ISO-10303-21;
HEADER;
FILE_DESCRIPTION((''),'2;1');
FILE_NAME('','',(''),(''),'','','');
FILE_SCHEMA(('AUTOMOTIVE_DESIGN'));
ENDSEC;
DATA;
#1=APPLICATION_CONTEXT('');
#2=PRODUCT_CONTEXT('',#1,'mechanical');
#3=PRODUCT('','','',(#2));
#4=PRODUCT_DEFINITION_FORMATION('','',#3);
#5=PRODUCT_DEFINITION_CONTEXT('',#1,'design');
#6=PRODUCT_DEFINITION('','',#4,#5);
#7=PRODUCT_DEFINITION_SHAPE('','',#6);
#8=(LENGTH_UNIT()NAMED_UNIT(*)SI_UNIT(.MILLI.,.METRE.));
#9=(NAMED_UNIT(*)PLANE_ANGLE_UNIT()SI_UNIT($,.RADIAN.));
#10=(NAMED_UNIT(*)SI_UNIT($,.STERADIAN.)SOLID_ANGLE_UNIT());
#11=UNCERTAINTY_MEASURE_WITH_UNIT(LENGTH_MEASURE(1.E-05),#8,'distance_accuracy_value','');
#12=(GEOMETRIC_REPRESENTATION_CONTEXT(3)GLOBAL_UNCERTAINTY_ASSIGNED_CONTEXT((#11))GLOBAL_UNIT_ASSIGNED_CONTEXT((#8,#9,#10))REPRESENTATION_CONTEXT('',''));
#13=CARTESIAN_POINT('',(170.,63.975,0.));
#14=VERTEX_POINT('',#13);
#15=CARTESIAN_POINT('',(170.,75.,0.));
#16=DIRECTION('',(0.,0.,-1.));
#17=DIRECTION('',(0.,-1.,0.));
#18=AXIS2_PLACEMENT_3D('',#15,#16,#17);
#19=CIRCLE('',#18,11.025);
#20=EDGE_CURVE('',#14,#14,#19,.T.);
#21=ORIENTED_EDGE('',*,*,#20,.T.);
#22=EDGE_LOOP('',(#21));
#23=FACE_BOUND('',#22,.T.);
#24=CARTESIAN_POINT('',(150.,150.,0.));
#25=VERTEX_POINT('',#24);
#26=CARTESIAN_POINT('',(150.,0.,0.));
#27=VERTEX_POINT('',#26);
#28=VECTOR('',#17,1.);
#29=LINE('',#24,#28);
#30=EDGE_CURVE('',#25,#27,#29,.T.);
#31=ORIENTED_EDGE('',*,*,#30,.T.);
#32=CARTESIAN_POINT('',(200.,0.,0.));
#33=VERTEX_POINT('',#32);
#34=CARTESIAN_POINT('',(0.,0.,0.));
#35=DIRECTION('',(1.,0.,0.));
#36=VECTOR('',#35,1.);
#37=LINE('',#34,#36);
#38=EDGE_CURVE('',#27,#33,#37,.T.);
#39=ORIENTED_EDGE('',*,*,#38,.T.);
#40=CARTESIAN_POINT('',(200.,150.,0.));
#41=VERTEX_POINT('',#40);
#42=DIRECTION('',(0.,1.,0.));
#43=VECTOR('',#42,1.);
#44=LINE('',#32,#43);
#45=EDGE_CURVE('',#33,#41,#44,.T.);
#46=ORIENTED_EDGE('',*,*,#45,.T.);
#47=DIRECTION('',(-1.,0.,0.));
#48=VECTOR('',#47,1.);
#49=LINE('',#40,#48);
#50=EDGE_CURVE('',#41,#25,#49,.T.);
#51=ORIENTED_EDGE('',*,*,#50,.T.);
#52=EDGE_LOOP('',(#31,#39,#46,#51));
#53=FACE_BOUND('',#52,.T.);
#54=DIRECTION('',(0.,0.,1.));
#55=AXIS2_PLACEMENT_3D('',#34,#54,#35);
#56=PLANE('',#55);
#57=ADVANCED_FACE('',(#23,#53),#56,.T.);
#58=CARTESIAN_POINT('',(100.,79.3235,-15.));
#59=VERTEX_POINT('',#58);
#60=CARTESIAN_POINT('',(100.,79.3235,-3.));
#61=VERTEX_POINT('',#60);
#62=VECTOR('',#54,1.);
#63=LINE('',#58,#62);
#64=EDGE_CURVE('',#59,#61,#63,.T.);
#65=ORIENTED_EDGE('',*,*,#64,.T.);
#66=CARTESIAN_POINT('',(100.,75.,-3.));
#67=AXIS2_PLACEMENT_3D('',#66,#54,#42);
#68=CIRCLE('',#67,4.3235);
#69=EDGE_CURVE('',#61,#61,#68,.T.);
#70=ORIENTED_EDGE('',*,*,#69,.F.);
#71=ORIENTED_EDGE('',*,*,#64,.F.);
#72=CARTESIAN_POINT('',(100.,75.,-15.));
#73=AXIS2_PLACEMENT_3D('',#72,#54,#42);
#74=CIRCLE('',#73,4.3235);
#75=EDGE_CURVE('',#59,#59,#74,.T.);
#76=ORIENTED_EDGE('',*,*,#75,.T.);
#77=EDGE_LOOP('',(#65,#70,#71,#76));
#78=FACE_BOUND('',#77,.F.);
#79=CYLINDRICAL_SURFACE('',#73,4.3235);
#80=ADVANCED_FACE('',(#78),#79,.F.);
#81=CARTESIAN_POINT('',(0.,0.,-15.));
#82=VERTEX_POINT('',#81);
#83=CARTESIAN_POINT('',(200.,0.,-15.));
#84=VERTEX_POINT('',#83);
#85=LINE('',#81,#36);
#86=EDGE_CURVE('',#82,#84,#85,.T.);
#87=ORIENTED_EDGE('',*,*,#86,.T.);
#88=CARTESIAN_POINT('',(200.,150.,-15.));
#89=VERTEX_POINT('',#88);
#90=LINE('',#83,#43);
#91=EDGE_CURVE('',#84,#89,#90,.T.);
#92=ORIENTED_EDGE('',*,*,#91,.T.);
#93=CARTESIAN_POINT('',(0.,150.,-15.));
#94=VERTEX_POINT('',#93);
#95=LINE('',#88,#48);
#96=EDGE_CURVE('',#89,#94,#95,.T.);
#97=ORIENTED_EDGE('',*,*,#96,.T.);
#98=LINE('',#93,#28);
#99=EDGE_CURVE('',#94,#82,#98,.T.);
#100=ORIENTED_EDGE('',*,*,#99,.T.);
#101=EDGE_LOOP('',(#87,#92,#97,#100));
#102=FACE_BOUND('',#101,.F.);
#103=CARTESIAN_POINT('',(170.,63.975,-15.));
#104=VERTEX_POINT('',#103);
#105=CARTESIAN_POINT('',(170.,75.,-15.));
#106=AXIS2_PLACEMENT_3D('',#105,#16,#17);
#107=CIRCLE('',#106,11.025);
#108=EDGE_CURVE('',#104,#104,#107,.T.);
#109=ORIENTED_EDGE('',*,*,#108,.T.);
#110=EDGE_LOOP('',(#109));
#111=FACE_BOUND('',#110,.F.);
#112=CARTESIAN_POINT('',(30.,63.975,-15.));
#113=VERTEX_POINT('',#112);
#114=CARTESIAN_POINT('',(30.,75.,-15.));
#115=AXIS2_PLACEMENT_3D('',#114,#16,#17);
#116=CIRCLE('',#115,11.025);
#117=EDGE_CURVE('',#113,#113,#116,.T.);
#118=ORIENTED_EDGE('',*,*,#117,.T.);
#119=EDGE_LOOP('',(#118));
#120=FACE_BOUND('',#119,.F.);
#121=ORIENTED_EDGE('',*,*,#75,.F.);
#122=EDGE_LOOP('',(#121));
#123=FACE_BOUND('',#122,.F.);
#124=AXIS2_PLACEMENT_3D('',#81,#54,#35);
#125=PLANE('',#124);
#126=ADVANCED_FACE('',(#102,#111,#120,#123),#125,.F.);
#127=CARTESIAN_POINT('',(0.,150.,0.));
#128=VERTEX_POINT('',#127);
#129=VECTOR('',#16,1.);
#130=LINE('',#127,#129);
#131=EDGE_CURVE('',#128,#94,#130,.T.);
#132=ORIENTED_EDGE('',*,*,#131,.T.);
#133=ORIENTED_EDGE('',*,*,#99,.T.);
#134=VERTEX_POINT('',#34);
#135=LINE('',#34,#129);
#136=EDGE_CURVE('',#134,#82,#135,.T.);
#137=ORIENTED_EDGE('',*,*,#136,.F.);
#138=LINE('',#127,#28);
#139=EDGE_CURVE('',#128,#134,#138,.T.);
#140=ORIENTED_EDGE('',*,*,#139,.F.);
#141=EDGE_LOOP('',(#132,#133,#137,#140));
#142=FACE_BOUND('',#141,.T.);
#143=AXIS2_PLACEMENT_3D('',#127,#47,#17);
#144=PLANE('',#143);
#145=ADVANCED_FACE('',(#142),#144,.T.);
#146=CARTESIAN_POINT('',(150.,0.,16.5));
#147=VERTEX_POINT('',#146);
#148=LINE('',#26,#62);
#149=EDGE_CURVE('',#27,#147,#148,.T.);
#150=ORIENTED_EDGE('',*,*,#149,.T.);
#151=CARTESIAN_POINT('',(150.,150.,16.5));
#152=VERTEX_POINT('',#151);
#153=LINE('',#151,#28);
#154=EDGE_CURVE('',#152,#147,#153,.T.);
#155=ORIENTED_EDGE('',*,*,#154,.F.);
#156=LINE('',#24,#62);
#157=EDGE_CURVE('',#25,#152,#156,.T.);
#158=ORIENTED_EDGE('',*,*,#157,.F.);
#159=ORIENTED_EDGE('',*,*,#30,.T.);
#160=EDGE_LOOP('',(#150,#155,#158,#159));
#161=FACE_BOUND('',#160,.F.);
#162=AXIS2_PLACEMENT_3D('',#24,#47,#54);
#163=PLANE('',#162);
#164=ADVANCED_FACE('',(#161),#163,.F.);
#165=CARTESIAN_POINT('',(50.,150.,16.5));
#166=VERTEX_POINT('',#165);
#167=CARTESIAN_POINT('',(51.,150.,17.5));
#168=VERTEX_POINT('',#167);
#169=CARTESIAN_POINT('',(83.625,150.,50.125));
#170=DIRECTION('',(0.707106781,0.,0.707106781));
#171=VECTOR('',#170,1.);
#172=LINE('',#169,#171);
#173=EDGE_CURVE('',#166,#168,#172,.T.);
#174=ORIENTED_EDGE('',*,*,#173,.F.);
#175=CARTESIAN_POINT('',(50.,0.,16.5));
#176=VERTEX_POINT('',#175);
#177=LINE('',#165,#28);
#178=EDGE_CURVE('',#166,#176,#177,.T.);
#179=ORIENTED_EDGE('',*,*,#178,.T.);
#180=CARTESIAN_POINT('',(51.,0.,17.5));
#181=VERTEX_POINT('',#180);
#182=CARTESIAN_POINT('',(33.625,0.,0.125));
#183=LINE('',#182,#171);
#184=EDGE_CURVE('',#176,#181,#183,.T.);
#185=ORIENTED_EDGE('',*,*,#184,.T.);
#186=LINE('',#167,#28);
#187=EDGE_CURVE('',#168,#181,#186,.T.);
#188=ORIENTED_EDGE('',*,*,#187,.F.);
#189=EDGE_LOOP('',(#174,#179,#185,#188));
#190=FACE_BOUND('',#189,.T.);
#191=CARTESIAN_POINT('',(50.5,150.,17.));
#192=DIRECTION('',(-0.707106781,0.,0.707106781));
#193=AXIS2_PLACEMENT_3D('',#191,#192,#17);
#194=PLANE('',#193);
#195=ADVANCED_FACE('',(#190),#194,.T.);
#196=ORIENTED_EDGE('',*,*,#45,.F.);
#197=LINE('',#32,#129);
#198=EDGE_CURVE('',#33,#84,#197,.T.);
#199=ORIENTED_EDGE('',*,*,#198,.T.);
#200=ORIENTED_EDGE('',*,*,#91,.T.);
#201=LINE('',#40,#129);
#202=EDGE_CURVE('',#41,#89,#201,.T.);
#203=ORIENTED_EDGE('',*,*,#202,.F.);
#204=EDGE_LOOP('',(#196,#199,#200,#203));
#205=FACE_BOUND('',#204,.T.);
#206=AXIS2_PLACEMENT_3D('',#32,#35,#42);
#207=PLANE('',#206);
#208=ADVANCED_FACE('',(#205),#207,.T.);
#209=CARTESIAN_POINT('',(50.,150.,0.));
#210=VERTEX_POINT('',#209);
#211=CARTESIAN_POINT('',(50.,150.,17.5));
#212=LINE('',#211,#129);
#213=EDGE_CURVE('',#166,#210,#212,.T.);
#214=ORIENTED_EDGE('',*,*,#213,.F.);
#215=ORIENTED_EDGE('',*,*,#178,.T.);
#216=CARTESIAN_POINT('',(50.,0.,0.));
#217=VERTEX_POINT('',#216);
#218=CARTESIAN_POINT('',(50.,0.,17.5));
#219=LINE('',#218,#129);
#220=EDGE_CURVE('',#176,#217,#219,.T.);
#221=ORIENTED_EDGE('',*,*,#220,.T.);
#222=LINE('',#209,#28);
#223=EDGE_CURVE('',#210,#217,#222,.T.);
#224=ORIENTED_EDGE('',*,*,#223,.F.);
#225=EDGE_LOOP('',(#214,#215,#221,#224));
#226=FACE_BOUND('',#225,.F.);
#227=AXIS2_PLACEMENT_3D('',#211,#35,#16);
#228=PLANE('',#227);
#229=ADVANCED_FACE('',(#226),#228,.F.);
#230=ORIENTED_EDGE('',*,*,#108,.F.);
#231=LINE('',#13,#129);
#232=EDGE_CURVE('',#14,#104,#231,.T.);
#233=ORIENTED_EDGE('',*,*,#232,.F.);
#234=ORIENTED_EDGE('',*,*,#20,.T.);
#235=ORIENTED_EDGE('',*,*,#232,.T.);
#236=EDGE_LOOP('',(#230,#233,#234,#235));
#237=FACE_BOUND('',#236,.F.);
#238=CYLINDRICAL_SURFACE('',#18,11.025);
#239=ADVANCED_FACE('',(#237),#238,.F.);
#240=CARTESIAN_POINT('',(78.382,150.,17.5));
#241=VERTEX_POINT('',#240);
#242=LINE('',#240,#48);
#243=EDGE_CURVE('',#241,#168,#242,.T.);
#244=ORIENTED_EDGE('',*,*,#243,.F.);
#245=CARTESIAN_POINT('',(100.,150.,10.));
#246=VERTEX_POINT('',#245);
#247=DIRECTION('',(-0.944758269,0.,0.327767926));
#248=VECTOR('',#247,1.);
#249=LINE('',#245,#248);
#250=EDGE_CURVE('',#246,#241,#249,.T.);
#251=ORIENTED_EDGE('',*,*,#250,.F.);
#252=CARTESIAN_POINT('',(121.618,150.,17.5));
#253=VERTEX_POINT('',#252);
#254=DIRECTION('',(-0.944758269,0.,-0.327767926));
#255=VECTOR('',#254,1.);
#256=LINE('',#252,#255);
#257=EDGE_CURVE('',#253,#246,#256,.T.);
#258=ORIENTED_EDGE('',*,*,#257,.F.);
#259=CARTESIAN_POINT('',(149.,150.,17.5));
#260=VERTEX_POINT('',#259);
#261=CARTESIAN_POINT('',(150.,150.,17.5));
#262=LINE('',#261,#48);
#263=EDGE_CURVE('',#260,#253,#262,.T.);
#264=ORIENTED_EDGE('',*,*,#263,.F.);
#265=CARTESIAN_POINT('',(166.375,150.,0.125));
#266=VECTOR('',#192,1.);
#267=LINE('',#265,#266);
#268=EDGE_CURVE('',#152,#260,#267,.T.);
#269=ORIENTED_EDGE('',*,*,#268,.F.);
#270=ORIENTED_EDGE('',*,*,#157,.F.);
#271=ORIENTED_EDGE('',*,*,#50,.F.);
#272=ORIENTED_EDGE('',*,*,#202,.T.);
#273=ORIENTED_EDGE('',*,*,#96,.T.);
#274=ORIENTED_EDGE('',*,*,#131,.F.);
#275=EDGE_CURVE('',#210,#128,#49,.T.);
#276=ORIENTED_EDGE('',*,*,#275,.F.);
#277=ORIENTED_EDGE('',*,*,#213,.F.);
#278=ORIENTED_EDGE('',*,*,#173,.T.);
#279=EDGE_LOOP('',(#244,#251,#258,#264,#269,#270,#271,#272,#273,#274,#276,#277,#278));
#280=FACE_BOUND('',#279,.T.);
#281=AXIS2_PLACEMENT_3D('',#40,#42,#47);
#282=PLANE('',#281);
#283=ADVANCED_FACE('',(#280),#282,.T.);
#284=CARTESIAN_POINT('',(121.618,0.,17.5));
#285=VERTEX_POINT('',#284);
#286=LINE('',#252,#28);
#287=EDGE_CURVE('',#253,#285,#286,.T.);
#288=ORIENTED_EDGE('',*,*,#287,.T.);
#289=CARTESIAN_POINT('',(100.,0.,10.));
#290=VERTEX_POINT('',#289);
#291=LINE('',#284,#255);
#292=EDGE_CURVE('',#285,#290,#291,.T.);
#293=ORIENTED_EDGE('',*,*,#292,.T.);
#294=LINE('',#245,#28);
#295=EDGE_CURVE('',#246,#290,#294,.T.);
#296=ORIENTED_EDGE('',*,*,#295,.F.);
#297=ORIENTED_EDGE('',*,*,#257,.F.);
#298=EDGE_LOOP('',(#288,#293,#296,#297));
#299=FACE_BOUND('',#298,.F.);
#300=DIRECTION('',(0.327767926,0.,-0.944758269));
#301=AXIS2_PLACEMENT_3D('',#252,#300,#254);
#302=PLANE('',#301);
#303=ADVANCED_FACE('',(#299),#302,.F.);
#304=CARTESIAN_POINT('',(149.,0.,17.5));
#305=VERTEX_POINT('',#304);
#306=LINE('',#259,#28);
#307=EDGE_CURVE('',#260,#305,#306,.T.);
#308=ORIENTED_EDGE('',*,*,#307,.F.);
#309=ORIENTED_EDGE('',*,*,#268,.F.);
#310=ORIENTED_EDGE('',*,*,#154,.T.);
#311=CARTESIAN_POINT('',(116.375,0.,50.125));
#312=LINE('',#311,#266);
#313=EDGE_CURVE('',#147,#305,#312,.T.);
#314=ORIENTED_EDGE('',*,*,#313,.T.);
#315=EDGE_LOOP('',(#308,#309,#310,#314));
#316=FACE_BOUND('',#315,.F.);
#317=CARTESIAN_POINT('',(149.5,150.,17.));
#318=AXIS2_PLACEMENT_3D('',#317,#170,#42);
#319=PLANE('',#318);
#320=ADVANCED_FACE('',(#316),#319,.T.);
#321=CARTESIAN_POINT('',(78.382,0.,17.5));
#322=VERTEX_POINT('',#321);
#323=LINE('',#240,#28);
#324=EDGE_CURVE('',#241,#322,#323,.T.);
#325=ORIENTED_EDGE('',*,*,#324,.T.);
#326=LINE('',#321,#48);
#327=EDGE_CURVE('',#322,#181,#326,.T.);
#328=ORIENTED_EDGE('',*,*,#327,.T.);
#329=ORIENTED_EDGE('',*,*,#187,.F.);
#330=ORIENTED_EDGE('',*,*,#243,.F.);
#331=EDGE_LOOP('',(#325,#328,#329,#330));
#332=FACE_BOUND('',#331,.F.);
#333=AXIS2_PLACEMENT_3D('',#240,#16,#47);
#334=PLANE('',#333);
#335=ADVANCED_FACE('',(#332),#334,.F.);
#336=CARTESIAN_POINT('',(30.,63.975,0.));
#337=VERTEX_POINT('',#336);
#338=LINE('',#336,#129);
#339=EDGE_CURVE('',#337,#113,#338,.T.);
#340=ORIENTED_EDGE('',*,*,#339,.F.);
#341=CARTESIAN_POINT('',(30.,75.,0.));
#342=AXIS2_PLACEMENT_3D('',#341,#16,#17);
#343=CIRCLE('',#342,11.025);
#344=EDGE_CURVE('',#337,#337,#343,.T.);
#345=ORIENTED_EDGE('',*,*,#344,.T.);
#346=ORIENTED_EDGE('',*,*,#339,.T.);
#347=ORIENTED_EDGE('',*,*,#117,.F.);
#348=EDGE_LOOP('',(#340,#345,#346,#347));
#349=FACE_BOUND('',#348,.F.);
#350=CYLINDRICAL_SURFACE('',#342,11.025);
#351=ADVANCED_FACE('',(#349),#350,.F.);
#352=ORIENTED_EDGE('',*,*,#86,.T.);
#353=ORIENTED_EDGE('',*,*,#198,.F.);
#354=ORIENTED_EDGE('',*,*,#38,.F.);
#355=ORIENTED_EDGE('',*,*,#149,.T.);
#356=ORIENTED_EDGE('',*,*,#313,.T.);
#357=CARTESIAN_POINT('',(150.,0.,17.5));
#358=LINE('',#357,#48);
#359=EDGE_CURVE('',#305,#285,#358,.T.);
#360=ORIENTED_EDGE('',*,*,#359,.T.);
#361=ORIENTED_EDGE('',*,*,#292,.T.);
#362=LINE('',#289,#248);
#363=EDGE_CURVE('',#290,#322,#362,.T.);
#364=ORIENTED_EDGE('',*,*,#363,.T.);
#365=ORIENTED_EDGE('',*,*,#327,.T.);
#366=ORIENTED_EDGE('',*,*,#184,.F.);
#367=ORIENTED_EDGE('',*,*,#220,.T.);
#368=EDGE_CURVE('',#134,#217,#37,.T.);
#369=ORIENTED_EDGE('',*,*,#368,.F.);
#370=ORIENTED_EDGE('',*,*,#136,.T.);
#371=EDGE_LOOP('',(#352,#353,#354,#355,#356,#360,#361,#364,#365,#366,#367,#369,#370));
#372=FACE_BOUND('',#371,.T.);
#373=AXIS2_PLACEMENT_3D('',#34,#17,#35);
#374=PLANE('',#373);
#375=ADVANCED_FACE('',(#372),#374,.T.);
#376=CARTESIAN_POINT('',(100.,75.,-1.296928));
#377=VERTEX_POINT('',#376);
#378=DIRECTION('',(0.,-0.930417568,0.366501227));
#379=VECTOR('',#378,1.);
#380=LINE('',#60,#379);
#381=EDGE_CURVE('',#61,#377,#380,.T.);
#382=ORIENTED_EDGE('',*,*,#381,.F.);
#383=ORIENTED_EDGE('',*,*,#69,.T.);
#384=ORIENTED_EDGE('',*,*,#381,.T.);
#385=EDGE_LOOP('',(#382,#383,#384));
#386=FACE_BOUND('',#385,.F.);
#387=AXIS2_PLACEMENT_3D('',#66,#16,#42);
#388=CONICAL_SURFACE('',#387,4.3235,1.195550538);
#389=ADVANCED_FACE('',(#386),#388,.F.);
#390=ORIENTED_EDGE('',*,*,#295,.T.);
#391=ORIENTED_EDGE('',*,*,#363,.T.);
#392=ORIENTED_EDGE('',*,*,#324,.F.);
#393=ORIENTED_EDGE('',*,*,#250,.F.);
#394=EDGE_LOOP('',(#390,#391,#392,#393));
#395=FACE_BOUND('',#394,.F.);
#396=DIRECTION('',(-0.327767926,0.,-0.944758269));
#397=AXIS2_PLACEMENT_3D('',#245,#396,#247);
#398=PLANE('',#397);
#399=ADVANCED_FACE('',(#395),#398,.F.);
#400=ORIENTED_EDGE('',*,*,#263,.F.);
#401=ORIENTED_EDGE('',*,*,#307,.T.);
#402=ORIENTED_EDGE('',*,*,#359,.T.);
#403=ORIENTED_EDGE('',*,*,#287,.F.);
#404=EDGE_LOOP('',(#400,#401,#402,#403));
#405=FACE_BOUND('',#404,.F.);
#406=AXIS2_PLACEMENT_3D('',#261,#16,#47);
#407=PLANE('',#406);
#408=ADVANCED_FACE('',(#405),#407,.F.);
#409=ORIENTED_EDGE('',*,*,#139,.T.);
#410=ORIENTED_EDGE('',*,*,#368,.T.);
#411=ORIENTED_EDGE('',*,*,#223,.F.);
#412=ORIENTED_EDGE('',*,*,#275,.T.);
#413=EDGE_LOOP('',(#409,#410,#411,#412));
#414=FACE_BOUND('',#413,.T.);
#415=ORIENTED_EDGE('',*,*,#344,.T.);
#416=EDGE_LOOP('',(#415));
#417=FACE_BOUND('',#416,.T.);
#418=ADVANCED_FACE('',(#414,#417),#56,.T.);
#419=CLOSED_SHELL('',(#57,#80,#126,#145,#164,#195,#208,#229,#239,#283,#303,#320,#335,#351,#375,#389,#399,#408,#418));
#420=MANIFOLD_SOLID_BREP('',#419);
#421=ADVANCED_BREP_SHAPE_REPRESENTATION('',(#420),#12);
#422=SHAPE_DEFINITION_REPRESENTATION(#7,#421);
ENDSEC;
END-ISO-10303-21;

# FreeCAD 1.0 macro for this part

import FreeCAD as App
import Part
import Sketcher

V = App.Vector


def edges_at(feature, points):
    """Names of the edges that pass closest to the given points."""
    edges = feature.Shape.Edges
    near = lambda p: min(range(len(edges)), key=lambda i: edges[i].distToShape(Part.Vertex(*p))[0])
    return sorted({f"Edge{near(p) + 1}" for p in points})

doc = App.newDocument("Part")
body = doc.addObject("PartDesign::Body", "Body")

# Sketch on XY plane
sketch1 = body.newObject("Sketcher::SketchObject", "Sketch")
sketch1.AttachmentSupport = (doc.getObject("XY_Plane"), [""])
sketch1.MapMode = "FlatFace"
sketch1.addGeometry([
    Part.LineSegment(V(0, 150, 0), V(0, 0, 0)),
    Part.LineSegment(V(0, 0, 0), V(200, 0, 0)),
    Part.LineSegment(V(200, 0, 0), V(200, 150, 0)),
    Part.LineSegment(V(200, 150, 0), V(0, 150, 0)),
], False)
sketch1.addConstraint([
    Sketcher.Constraint("Coincident", 0, 2, 1, 1),
    Sketcher.Constraint("Coincident", 1, 2, 2, 1),
    Sketcher.Constraint("Coincident", 2, 2, 3, 1),
    Sketcher.Constraint("Coincident", 3, 2, 0, 1),
    Sketcher.Constraint("Vertical", 0),
    Sketcher.Constraint("Horizontal", 1),
    Sketcher.Constraint("Vertical", 2),
    Sketcher.Constraint("Horizontal", 3),
    Sketcher.Constraint("Coincident", 0, 2, -1, 1),
    Sketcher.Constraint("DistanceX", 1, 1, 1, 2, 200.0),
    Sketcher.Constraint("DistanceY", 0, 2, 0, 1, 150.0),
])
pad1 = body.newObject("PartDesign::Pad", "Pad")
pad1.Profile = sketch1
pad1.Length = 15
pad1.Reversed = True

# Sketch on XY plane
sketch2 = body.newObject("Sketcher::SketchObject", "Sketch001")
sketch2.AttachmentSupport = (doc.getObject("XY_Plane"), [""])
sketch2.MapMode = "FlatFace"
sketch2.addGeometry([
    Part.Circle(V(30, 75, 0), V(0, 0, 1), 11),
    Part.Circle(V(170, 75, 0), V(0, 0, 1), 11),
], False)
sketch2.addConstraint([
    Sketcher.Constraint("Equal", 0, 1),
    Sketcher.Constraint("Horizontal", 0, 3, 1, 3),
    Sketcher.Constraint("Diameter", 0, 22.05),
    Sketcher.Constraint("DistanceX", -1, 1, 0, 3, 30.0),
    Sketcher.Constraint("DistanceY", -1, 1, 0, 3, 75.0),
    Sketcher.Constraint("DistanceX", -1, 1, 1, 3, 170.0),
])
doc.recompute()
hole = body.newObject("PartDesign::Hole", "Hole")
hole.Profile = sketch2
hole.ThreadType = "None"
hole.Diameter = 22.05
hole.DepthType = "ThroughAll"

# Sketch on XZ plane
sketch3 = body.newObject("Sketcher::SketchObject", "Sketch002")
sketch3.AttachmentSupport = (doc.getObject("XZ_Plane"), [""])
sketch3.MapMode = "FlatFace"
sketch3.AttachmentOffset = App.Placement(V(0, 0, -150), App.Rotation())
sketch3.addGeometry([
    Part.LineSegment(V(150, 0, 0), V(50, 0, 0)),  # 0
    Part.LineSegment(V(50, 0, 0), V(50, 18, 0)),  # 1
    Part.LineSegment(V(50, 18, 0), V(78, 18, 0)),  # 2
    Part.LineSegment(V(78, 18, 0), V(100, 10, 0)),  # 3
    Part.LineSegment(V(100, 10, 0), V(122, 18, 0)),  # 4
    Part.LineSegment(V(122, 18, 0), V(150, 18, 0)),  # 5
    Part.LineSegment(V(150, 18, 0), V(150, 0, 0)),  # 6
], False)
sketch3.addConstraint([
    Sketcher.Constraint("Coincident", 0, 2, 1, 1),
    Sketcher.Constraint("Coincident", 1, 2, 2, 1),
    Sketcher.Constraint("Coincident", 2, 2, 3, 1),
    Sketcher.Constraint("Coincident", 3, 2, 4, 1),
    Sketcher.Constraint("Coincident", 4, 2, 5, 1),
    Sketcher.Constraint("Coincident", 5, 2, 6, 1),
    Sketcher.Constraint("Coincident", 6, 2, 0, 1),
    Sketcher.Constraint("Horizontal", 0),
    Sketcher.Constraint("Vertical", 1),
    Sketcher.Constraint("Horizontal", 2),
    Sketcher.Constraint("Horizontal", 5),
    Sketcher.Constraint("Vertical", 6),
    Sketcher.Constraint("PointOnObject", 0, 2, -1),
    Sketcher.Constraint("Horizontal", 2, 2, 4, 2),
    Sketcher.Constraint("Equal", 2, 5),
    Sketcher.Constraint("Equal", 3, 4),
    Sketcher.Constraint("DistanceX", 0, 2, 0, 1, 100.0),
    Sketcher.Constraint("DistanceY", 1, 1, 1, 2, 17.5),
    Sketcher.Constraint("DistanceX", -1, 1, 0, 2, 50.0),
    Sketcher.Constraint("DistanceY", 3, 2, 2, 2, 7.5),
    Sketcher.Constraint("DistanceX", 2, 1, 2, 2, 28.382),
])
pad2 = body.newObject("PartDesign::Pad", "Pad001")
pad2.Profile = sketch3
pad2.Length = 150
doc.recompute()

chamfer = body.newObject("PartDesign::Chamfer", "Chamfer")
chamfer.Base = (pad2, edges_at(pad2, [(150, 75, 17.5), (50, 75, 17.5)]))
chamfer.Size = 1

# Sketch on XY plane
sketch4 = body.newObject("Sketcher::SketchObject", "Sketch003")
sketch4.AttachmentSupport = (doc.getObject("XY_Plane"), [""])
sketch4.MapMode = "FlatFace"
sketch4.AttachmentOffset = App.Placement(V(0, 0, -15), App.Rotation())
sketch4.addGeometry(Part.Circle(V(100, 75, 0), V(0, 0, 1), 4.3), False)
sketch4.addConstraint([
    Sketcher.Constraint("Diameter", 0, 8.647),
    Sketcher.Constraint("DistanceX", -1, 1, 0, 3, 100.0),
    Sketcher.Constraint("DistanceY", -1, 1, 0, 3, 75.0),
])
doc.recompute()
hole2 = body.newObject("PartDesign::Hole", "Hole001")
hole2.Profile = sketch4
hole2.ThreadType = "None"
hole2.Diameter = 8.647
hole2.DepthType = "Dimension"
hole2.Depth = 12
hole2.DrillPoint = "Angled"
hole2.DrillPointAngle = 137
hole2.Reversed = True

doc.recompute()
